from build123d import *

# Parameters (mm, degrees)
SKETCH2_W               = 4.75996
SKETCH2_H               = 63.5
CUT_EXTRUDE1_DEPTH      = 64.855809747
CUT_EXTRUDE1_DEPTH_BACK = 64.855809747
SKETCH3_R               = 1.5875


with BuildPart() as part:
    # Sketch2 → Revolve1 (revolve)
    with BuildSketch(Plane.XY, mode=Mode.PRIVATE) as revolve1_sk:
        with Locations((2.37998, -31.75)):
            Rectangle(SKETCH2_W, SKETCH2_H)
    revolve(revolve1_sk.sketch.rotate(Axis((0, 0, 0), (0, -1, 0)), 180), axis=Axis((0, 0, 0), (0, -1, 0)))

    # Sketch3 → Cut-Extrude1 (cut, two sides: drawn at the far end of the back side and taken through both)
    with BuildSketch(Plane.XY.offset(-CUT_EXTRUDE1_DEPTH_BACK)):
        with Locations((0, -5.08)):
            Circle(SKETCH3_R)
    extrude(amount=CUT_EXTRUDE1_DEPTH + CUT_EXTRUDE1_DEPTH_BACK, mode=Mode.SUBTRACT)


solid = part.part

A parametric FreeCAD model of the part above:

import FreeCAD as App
import Part
import Sketcher

V = App.Vector
Q = App.Units.Quantity

doc = App.newDocument("Part")
body = doc.addObject("PartDesign::Body", "Body")

# Sketch on XY plane
sketch1 = doc.addObject("Sketcher::SketchObject", "Sketch")
body.addObject(sketch1)
sketch1.AttachmentSupport = (doc.XY_Plane, [""])
sketch1.MapMode = "FlatFace"
sketch1.addGeometry(Part.LineSegment(V(0, 0, 0), V(0, -63.5, 0)), False)
sketch1.addGeometry(Part.LineSegment(V(0, -63.5, 0), V(4.8, -63.5, 0)), False)
sketch1.addGeometry(Part.LineSegment(V(4.8, -63.5, 0), V(4.8, 0, 0)), False)
sketch1.addGeometry(Part.LineSegment(V(4.8, 0, 0), V(0, 0, 0)), False)
sketch1.addConstraint(Sketcher.Constraint("Coincident", 0, 2, 1, 1))
sketch1.addConstraint(Sketcher.Constraint("Coincident", 1, 2, 2, 1))
sketch1.addConstraint(Sketcher.Constraint("Coincident", 2, 2, 3, 1))
sketch1.addConstraint(Sketcher.Constraint("Coincident", 3, 2, 0, 1))
sketch1.addConstraint(Sketcher.Constraint("Vertical", 0))
sketch1.addConstraint(Sketcher.Constraint("Horizontal", 1))
sketch1.addConstraint(Sketcher.Constraint("Vertical", 2))
sketch1.addConstraint(Sketcher.Constraint("Horizontal", 3))
sketch1.addConstraint(Sketcher.Constraint("Coincident", 3, 2, -1, 1))
sketch1.addConstraint(Sketcher.Constraint("DistanceY", 0, 2, 0, 1, Q("2.5 in")))
sketch1.addConstraint(Sketcher.Constraint("DistanceX", 1, 1, 1, 2, Q("0.1874 in")))
revolution = doc.addObject("PartDesign::Revolution", "Revolution")
body.addObject(revolution)
revolution.Profile = sketch1
revolution.ReferenceAxis = (sketch1, ["V_Axis"])
revolution.Angle = 360

# Sketch on XY plane
sketch2 = doc.addObject("Sketcher::SketchObject", "Sketch001")
body.addObject(sketch2)
sketch2.AttachmentSupport = (doc.XY_Plane, [""])
sketch2.MapMode = "FlatFace"
sketch2.addGeometry(Part.Circle(V(0, -5.1, 0), V(0, 0, 1), 1.6), False)
sketch2.addConstraint(Sketcher.Constraint("PointOnObject", 0, 3, -2))
sketch2.addConstraint(Sketcher.Constraint("Diameter", 0, Q("0.125 in")))
sketch2.addConstraint(Sketcher.Constraint("DistanceY", 0, 3, -1, 1, Q("0.2 in")))
pocket1 = doc.addObject("PartDesign::Pocket", "Pocket")
body.addObject(pocket1)
pocket1.Profile = sketch2
pocket1.Type = "ThroughAll"
pocket1.Midplane = True

doc.recompute()
